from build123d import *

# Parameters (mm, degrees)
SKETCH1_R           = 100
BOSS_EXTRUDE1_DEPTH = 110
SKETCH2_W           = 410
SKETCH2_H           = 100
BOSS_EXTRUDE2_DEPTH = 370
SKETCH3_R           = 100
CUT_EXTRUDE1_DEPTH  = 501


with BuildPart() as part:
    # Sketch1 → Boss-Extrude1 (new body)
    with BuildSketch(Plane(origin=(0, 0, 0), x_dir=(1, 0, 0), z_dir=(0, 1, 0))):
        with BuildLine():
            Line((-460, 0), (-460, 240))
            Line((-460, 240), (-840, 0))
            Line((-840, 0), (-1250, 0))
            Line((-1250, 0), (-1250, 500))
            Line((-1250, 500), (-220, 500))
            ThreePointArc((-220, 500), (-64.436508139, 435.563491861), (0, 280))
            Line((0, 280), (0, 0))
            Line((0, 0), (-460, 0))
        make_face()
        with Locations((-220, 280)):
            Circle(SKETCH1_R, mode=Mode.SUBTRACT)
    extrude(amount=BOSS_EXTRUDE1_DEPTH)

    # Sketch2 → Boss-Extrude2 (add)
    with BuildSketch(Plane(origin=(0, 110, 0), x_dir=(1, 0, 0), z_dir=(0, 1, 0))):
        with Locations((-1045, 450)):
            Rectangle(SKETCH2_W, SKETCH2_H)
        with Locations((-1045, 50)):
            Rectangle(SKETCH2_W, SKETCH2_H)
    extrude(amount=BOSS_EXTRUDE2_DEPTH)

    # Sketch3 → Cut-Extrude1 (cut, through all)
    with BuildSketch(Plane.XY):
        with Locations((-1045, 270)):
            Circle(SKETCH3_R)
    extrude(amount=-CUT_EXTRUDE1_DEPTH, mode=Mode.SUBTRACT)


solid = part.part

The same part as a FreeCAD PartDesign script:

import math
import FreeCAD as App
import Part
import Sketcher
from FreeCAD import Vector

doc = App.newDocument("Part")
body = doc.addObject("PartDesign::Body", "Body")

# Sketch on XZ plane
sketch1 = body.newObject("Sketcher::SketchObject", "Sketch")
sketch1.AttachmentSupport = (doc.getObject("XZ_Plane"), [""])
sketch1.MapMode = "FlatFace"
sketch1.addGeometry([
    Part.LineSegment(Vector(-460, -240, 0), Vector(-460, 0, 0)),  # 0
    Part.LineSegment(Vector(-460, 0, 0), Vector(0, 0, 0)),  # 1
    Part.LineSegment(Vector(0, 0, 0), Vector(0, -280, 0)),  # 2
    Part.ArcOfCircle(Part.Circle(Vector(-220, -280, 0), Vector(0, 0, 1), 220), math.radians(-90), math.radians(0)),  # 3
    Part.LineSegment(Vector(-220, -500, 0), Vector(-1250, -500, 0)),  # 4
    Part.LineSegment(Vector(-1250, -500, 0), Vector(-1250, 0, 0)),  # 5
    Part.LineSegment(Vector(-1250, 0, 0), Vector(-840, 0, 0)),  # 6
    Part.LineSegment(Vector(-840, 0, 0), Vector(-460, -240, 0)),  # 7
    Part.Circle(Vector(-220, -280, 0), Vector(0, 0, 1), 100),  # 8
], False)
sketch1.addConstraint([
    Sketcher.Constraint("Coincident", 0, 2, 1, 1),
    Sketcher.Constraint("Coincident", 1, 2, 2, 1),
    Sketcher.Constraint("Tangent", 2, 2, 3, 2),
    Sketcher.Constraint("Tangent", 3, 1, 4, 1),
    Sketcher.Constraint("Coincident", 4, 2, 5, 1),
    Sketcher.Constraint("Coincident", 5, 2, 6, 1),
    Sketcher.Constraint("Coincident", 6, 2, 7, 1),
    Sketcher.Constraint("Coincident", 7, 2, 0, 1),
    Sketcher.Constraint("Vertical", 0),
    Sketcher.Constraint("Horizontal", 1),
    Sketcher.Constraint("Vertical", 2),
    Sketcher.Constraint("Horizontal", 4),
    Sketcher.Constraint("Vertical", 5),
    Sketcher.Constraint("Horizontal", 6),
    Sketcher.Constraint("Coincident", 1, 2, -1, 1),
    Sketcher.Constraint("Coincident", 8, 3, 3, 3),
    Sketcher.Constraint("PointOnObject", 5, 2, -1),
    Sketcher.Constraint("Diameter", 8, 200.0),
    Sketcher.Constraint("Radius", 3, 220.0),
    Sketcher.Constraint("DistanceX", 1, 1, 1, 2, 460.0),
    Sketcher.Constraint("DistanceX", 4, 2, 4, 1, 1030.0),
    Sketcher.Constraint("DistanceX", 6, 1, 6, 2, 410.0),
    Sketcher.Constraint("DistanceY", 0, 1, 0, 2, 240.0),
    Sketcher.Constraint("DistanceY", 2, 2, 2, 1, 280.0),
])
pad1 = body.newObject("PartDesign::Pad", "Pad")
pad1.Profile = sketch1
pad1.Length = 110
pad1.Reversed = True

# Sketch on XZ plane
sketch2 = body.newObject("Sketcher::SketchObject", "Sketch001")
sketch2.AttachmentSupport = (doc.getObject("XZ_Plane"), [""])
sketch2.MapMode = "FlatFace"
sketch2.AttachmentOffset = App.Placement(Vector(0, 0, -110), App.Rotation())
sketch2.addGeometry([
    Part.LineSegment(Vector(-1250, -500, 0), Vector(-1250, -400, 0)),  # 0
    Part.LineSegment(Vector(-1250, -400, 0), Vector(-840, -400, 0)),  # 1
    Part.LineSegment(Vector(-840, -400, 0), Vector(-840, -500, 0)),  # 2
    Part.LineSegment(Vector(-840, -500, 0), Vector(-1250, -500, 0)),  # 3
    Part.LineSegment(Vector(-1250, -100, 0), Vector(-1250, 0, 0)),  # 4
    Part.LineSegment(Vector(-1250, 0, 0), Vector(-840, 0, 0)),  # 5
    Part.LineSegment(Vector(-840, 0, 0), Vector(-840, -100, 0)),  # 6
    Part.LineSegment(Vector(-840, -100, 0), Vector(-1250, -100, 0)),  # 7
], False)
sketch2.addConstraint([
    Sketcher.Constraint("Coincident", 0, 2, 1, 1),
    Sketcher.Constraint("Coincident", 1, 2, 2, 1),
    Sketcher.Constraint("Coincident", 2, 2, 3, 1),
    Sketcher.Constraint("Coincident", 3, 2, 0, 1),
    Sketcher.Constraint("Coincident", 4, 2, 5, 1),
    Sketcher.Constraint("Coincident", 5, 2, 6, 1),
    Sketcher.Constraint("Coincident", 6, 2, 7, 1),
    Sketcher.Constraint("Coincident", 7, 2, 4, 1),
    Sketcher.Constraint("Vertical", 0),
    Sketcher.Constraint("Horizontal", 1),
    Sketcher.Constraint("Vertical", 2),
    Sketcher.Constraint("Horizontal", 3),
    Sketcher.Constraint("Vertical", 4),
    Sketcher.Constraint("Horizontal", 5),
    Sketcher.Constraint("Vertical", 6),
    Sketcher.Constraint("Horizontal", 7),
    Sketcher.Constraint("PointOnObject", 4, 2, -1),
    Sketcher.Constraint("Vertical", 3, 2, 4, 2),
    Sketcher.Constraint("Vertical", 2, 2, 5, 2),
    Sketcher.Constraint("Equal", 2, 4),
    Sketcher.Constraint("DistanceX", 1, 1, 1, 2, 410.0),
    Sketcher.Constraint("DistanceY", 0, 1, 0, 2, 100.0),
    Sketcher.Constraint("DistanceX", 0, 2, -1, 1, 1250.0),
    Sketcher.Constraint("DistanceY", 0, 2, -1, 1, 400.0),
])
pad2 = body.newObject("PartDesign::Pad", "Pad001")
pad2.Profile = sketch2
pad2.Length = 370
pad2.Reversed = True

# Sketch on XY plane
sketch3 = body.newObject("Sketcher::SketchObject", "Sketch002")
sketch3.AttachmentSupport = (doc.getObject("XY_Plane"), [""])
sketch3.MapMode = "FlatFace"
sketch3.addGeometry(Part.Circle(Vector(-1045, 270, 0), Vector(0, 0, 1), 100), False)
sketch3.addConstraint([
    Sketcher.Constraint("Diameter", 0, 200.0),
    Sketcher.Constraint("DistanceX", 0, 3, -1, 1, 1045.0),
    Sketcher.Constraint("DistanceY", -1, 1, 0, 3, 270.0),
])
pocket1 = body.newObject("PartDesign::Pocket", "Pocket")
pocket1.Profile = sketch3
pocket1.Type = "ThroughAll"

doc.recompute()
